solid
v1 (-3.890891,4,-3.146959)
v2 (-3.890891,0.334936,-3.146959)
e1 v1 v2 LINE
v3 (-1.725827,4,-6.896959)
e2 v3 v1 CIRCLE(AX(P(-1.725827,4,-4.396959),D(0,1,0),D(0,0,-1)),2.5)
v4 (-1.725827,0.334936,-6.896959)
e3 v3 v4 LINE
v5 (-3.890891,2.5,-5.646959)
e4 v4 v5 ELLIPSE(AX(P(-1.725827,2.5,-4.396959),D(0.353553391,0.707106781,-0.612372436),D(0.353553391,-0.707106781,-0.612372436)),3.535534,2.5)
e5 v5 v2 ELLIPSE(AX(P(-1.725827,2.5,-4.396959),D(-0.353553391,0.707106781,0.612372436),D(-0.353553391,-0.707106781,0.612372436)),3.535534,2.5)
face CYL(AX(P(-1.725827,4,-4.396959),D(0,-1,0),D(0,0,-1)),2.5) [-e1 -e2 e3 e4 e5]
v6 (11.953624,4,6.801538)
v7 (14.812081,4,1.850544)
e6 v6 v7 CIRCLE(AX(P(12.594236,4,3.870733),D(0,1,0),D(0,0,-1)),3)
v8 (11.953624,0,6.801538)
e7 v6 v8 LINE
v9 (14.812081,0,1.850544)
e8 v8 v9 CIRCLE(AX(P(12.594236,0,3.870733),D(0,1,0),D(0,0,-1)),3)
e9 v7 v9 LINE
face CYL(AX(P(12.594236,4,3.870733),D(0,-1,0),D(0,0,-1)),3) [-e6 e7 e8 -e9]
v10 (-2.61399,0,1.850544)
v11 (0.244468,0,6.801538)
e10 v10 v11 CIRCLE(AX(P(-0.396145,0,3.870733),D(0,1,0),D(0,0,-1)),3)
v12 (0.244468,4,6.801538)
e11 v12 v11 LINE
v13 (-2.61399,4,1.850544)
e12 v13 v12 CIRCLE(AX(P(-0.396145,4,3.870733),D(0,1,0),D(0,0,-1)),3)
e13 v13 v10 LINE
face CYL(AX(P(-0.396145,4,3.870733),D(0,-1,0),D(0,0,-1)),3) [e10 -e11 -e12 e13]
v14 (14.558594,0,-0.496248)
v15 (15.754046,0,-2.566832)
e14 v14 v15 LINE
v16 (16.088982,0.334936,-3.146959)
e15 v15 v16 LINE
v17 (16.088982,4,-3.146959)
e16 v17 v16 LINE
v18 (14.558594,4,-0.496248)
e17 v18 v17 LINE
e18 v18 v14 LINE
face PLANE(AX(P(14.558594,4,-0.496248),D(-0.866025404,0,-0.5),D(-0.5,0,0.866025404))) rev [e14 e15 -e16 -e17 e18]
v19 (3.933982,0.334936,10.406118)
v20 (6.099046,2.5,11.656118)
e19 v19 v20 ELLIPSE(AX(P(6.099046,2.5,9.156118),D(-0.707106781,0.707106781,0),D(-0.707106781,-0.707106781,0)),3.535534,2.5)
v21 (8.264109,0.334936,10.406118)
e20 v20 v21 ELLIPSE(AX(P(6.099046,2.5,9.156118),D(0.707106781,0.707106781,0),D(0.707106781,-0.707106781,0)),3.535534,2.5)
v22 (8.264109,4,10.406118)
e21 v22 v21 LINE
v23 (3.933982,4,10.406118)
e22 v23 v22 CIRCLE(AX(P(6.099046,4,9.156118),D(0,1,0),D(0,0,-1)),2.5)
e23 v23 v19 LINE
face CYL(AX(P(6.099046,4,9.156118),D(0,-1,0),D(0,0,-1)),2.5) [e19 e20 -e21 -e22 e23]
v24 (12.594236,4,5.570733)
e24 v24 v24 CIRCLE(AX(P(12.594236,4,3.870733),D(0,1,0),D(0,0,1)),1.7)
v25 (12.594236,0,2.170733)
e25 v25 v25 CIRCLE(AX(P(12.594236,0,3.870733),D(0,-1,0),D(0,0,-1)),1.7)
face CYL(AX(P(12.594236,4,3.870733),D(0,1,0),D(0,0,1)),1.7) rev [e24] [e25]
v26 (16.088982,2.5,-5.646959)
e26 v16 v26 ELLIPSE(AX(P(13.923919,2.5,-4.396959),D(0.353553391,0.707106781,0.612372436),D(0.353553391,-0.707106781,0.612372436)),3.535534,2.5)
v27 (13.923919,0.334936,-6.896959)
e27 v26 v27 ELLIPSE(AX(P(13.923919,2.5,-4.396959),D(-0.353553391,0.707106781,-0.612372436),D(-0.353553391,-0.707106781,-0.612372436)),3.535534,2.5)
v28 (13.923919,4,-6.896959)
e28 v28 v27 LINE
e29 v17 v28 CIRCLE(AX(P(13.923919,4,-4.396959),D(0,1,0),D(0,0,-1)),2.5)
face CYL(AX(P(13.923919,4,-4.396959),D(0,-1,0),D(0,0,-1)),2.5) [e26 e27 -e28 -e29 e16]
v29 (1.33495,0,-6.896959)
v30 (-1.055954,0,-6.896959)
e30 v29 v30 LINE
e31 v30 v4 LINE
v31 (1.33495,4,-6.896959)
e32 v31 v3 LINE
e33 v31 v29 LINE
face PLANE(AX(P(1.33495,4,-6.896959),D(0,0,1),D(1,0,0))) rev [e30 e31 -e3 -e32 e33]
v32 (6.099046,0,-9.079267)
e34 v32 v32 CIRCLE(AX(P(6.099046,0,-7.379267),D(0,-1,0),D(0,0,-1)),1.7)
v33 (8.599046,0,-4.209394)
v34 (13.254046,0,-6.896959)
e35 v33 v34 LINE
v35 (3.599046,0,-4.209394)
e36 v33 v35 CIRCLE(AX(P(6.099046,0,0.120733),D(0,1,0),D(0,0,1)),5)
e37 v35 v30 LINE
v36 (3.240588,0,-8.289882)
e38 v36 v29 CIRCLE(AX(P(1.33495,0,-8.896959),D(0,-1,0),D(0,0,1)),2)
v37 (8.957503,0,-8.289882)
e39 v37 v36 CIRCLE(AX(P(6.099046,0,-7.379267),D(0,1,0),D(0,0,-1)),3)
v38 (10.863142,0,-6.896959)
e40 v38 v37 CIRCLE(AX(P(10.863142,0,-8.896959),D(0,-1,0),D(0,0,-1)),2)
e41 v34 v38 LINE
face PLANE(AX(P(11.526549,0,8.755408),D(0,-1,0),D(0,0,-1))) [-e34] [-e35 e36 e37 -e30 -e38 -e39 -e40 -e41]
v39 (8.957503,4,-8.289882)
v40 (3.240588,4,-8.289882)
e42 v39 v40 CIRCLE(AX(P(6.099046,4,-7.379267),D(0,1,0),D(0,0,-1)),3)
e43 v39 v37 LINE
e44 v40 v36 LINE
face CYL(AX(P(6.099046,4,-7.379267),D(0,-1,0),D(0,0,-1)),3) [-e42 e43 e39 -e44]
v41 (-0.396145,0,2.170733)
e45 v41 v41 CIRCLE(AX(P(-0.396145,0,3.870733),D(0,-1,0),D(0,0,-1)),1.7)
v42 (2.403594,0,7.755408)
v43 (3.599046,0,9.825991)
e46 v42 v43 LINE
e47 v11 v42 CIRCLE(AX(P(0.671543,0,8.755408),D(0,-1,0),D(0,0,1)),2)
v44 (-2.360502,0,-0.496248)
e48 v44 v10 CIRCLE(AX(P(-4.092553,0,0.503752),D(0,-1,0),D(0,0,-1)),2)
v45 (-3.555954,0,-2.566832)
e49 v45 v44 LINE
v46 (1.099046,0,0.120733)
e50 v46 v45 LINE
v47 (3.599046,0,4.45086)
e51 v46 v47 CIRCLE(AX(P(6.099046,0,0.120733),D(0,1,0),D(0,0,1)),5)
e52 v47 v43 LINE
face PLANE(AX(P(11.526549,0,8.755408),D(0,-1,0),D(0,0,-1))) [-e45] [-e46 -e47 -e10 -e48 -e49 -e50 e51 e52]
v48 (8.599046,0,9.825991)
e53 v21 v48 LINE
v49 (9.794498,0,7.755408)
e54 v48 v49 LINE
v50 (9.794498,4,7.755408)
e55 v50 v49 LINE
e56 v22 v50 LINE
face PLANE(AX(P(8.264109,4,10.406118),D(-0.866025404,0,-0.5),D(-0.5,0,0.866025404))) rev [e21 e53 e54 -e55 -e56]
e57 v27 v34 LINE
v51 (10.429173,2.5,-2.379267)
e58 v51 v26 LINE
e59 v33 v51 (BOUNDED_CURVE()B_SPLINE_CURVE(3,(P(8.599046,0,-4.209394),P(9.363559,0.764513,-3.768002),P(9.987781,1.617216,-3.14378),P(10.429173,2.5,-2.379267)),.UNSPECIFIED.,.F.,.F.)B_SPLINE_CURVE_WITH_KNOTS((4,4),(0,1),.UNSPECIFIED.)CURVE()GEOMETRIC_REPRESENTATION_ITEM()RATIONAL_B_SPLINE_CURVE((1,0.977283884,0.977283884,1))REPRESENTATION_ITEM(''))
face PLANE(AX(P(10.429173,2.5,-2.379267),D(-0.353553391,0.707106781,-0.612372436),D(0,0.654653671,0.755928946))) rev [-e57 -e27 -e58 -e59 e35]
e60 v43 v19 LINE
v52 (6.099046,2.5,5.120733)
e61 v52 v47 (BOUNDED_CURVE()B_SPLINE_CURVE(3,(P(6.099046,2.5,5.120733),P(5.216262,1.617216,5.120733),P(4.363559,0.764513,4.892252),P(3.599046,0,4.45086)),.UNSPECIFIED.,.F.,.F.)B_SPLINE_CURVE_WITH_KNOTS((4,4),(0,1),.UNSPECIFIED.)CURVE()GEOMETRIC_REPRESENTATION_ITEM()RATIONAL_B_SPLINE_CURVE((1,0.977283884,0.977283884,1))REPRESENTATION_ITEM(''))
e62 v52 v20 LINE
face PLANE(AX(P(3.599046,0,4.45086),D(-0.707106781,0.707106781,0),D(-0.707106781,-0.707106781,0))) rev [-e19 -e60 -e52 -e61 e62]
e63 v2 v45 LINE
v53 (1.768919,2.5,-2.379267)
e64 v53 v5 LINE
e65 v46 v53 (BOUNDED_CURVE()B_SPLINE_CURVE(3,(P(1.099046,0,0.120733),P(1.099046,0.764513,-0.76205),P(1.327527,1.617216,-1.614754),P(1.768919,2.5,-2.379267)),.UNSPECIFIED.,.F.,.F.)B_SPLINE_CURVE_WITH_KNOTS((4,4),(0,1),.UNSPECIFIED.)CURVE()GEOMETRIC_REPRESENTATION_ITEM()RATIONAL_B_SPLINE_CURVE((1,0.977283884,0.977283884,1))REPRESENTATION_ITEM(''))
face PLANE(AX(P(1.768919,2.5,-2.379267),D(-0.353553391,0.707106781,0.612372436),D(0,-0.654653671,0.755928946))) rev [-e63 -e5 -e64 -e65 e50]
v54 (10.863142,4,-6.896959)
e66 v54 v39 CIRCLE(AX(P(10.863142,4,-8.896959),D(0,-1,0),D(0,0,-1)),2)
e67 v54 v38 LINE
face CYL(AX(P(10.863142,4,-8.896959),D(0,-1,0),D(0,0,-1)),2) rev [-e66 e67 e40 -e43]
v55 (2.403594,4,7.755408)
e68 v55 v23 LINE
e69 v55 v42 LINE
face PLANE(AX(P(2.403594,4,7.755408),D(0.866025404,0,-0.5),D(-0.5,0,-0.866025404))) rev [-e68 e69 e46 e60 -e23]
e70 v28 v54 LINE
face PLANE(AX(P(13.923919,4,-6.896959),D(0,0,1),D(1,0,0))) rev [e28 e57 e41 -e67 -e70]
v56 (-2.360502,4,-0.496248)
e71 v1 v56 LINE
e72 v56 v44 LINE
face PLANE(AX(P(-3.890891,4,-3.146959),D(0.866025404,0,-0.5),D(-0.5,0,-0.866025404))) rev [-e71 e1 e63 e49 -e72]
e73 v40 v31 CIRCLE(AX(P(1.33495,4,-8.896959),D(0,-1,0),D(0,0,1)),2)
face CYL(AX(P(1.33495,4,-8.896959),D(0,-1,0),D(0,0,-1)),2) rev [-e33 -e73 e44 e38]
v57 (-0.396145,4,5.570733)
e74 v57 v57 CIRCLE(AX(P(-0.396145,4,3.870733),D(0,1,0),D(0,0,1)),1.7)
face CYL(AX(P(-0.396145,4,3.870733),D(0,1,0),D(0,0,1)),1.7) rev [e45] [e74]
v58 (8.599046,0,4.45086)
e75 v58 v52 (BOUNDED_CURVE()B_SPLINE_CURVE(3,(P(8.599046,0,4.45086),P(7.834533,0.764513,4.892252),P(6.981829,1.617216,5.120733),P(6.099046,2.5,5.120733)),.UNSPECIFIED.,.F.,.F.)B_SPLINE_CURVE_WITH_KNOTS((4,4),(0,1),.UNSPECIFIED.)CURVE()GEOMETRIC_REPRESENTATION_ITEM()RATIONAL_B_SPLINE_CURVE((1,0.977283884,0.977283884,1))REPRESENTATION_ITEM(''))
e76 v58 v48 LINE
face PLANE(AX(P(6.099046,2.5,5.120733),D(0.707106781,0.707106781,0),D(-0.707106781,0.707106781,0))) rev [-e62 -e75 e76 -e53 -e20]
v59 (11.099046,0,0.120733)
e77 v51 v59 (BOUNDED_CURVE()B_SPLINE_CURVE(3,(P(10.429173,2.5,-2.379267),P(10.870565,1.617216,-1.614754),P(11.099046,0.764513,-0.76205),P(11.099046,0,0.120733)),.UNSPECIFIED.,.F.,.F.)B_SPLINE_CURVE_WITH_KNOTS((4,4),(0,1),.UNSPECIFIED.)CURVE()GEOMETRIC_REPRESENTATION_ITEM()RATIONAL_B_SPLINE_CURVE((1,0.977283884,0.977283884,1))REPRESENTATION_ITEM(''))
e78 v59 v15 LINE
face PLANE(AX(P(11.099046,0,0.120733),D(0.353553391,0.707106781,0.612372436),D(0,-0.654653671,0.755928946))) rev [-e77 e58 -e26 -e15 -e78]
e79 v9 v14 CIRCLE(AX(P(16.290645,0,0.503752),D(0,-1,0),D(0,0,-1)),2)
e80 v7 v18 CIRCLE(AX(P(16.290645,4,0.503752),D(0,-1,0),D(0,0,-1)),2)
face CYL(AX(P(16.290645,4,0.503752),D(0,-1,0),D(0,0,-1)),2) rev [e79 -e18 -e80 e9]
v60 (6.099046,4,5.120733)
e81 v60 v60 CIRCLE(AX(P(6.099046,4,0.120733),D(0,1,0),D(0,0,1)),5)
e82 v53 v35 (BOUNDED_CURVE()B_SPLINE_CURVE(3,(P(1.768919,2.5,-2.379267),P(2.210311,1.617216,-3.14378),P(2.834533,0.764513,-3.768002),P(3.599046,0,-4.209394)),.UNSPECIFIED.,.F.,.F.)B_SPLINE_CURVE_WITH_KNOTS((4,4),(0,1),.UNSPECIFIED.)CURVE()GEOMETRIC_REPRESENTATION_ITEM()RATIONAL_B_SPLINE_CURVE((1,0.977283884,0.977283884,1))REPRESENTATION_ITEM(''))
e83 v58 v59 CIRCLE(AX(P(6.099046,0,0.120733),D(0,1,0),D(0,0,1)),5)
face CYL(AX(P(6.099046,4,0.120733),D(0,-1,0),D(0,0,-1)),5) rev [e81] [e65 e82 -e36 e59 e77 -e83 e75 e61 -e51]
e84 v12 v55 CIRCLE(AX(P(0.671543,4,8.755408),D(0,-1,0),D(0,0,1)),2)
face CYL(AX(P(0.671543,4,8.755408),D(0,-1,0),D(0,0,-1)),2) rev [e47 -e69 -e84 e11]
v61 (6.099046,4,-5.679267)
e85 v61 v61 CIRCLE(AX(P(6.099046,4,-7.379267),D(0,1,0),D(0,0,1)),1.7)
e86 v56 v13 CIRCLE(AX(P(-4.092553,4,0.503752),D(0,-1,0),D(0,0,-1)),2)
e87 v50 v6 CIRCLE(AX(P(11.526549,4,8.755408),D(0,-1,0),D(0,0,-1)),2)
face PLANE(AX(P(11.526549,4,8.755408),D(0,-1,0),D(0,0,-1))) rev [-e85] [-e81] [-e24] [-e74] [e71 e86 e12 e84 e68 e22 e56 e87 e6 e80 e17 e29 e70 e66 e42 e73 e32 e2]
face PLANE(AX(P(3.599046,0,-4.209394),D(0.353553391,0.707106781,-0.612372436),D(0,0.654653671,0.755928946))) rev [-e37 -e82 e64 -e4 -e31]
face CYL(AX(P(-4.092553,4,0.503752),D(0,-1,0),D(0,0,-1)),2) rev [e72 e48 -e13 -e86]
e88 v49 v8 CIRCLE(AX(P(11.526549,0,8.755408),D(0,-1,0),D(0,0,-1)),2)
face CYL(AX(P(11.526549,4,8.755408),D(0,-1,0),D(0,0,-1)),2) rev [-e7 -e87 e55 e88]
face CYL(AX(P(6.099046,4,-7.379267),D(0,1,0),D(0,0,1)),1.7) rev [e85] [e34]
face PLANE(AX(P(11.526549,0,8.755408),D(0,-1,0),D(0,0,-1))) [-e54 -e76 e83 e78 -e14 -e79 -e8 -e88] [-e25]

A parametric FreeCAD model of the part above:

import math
import FreeCAD as App
import Part
import Sketcher
from FreeCAD import Vector
Q = App.Units.Quantity

doc = App.newDocument("Part")
body = doc.addObject("PartDesign::Body", "Body")

# Sketch on XZ plane
sketch1 = body.newObject("Sketcher::SketchObject", "Sketch")
sketch1.AttachmentSupport = (doc.getObject("XZ_Plane"), [""])
sketch1.MapMode = "FlatFace"
sketch1.addGeometry([
    Part.LineSegment(Vector(-3.890891, -3.146959, 0), Vector(-2.360502, -0.496248, 0)),  # 0
    Part.ArcOfCircle(Part.Circle(Vector(-4.092553, 0.503752, 0), Vector(0, 0, 1), 2), math.radians(-30), math.radians(42.329742)),  # 1
    Part.ArcOfCircle(Part.Circle(Vector(-0.396145, 3.870733, 0), Vector(0, 0, 1), 3), math.radians(77.670258), math.radians(222.329742)),  # 2
    Part.ArcOfCircle(Part.Circle(Vector(0.671543, 8.755408, 0), Vector(0, 0, 1), 2), math.radians(-102.329742), math.radians(-30)),  # 3
    Part.LineSegment(Vector(2.403594, 7.755408, 0), Vector(3.933982, 10.406118, 0)),  # 4
    Part.ArcOfCircle(Part.Circle(Vector(6.099046, 9.156118, 0), Vector(0, 0, 1), 2.5), math.radians(30), math.radians(150)),  # 5
    Part.LineSegment(Vector(8.264109, 10.406118, 0), Vector(9.794498, 7.755408, 0)),  # 6
    Part.ArcOfCircle(Part.Circle(Vector(11.526549, 8.755408, 0), Vector(0, 0, 1), 2), math.radians(-150), math.radians(-77.670258)),  # 7
    Part.ArcOfCircle(Part.Circle(Vector(12.594236, 3.870733, 0), Vector(0, 0, 1), 3), math.radians(-42.329742), math.radians(102.329742)),  # 8
    Part.ArcOfCircle(Part.Circle(Vector(16.290645, 0.503752, 0), Vector(0, 0, 1), 2), math.radians(137.670258), math.radians(210)),  # 9
    Part.LineSegment(Vector(14.558594, -0.496248, 0), Vector(16.088982, -3.146959, 0)),  # 10
    Part.ArcOfCircle(Part.Circle(Vector(13.923919, -4.396959, 0), Vector(0, 0, 1), 2.5), math.radians(-90), math.radians(30)),  # 11
    Part.LineSegment(Vector(13.923919, -6.896959, 0), Vector(10.863142, -6.896959, 0)),  # 12
    Part.ArcOfCircle(Part.Circle(Vector(10.863142, -8.896959, 0), Vector(0, 0, 1), 2), math.radians(90), math.radians(162.329742)),  # 13
    Part.ArcOfCircle(Part.Circle(Vector(6.099046, -7.379267, 0), Vector(0, 0, 1), 3), math.radians(-162.329742), math.radians(-17.670258)),  # 14
    Part.ArcOfCircle(Part.Circle(Vector(1.33495, -8.896959, 0), Vector(0, 0, 1), 2), math.radians(17.670258), math.radians(90)),  # 15
    Part.LineSegment(Vector(1.33495, -6.896959, 0), Vector(-1.725827, -6.896959, 0)),  # 16
    Part.ArcOfCircle(Part.Circle(Vector(-1.725827, -4.396959, 0), Vector(0, 0, 1), 2.5), math.radians(150), math.radians(270)),  # 17
    Part.Circle(Vector(6.099046, 0.120733, 0), Vector(0, 0, 1), 5),  # 18
], False)
sketch1.addConstraint([
    Sketcher.Constraint("Tangent", 0, 2, 1, 1),
    Sketcher.Constraint("Tangent", 1, 2, 2, 2),
    Sketcher.Constraint("Tangent", 2, 1, 3, 1),
    Sketcher.Constraint("Tangent", 3, 2, 4, 1),
    Sketcher.Constraint("Tangent", 4, 2, 5, 2),
    Sketcher.Constraint("Tangent", 5, 1, 6, 1),
    Sketcher.Constraint("Tangent", 6, 2, 7, 1),
    Sketcher.Constraint("Tangent", 7, 2, 8, 2),
    Sketcher.Constraint("Tangent", 8, 1, 9, 1),
    Sketcher.Constraint("Tangent", 9, 2, 10, 1),
    Sketcher.Constraint("Tangent", 10, 2, 11, 2),
    Sketcher.Constraint("Tangent", 11, 1, 12, 1),
    Sketcher.Constraint("Tangent", 12, 2, 13, 1),
    Sketcher.Constraint("Tangent", 13, 2, 14, 2),
    Sketcher.Constraint("Tangent", 14, 1, 15, 1),
    Sketcher.Constraint("Tangent", 15, 2, 16, 1),
    Sketcher.Constraint("Tangent", 16, 2, 17, 2),
    Sketcher.Constraint("Tangent", 17, 1, 0, 1),
    Sketcher.Constraint("Horizontal", 12),
    Sketcher.Constraint("Horizontal", 16),
    Sketcher.Constraint("Equal", 1, 3),
    Sketcher.Constraint("Equal", 3, 7),
    Sketcher.Constraint("Equal", 2, 8),
    Sketcher.Constraint("Equal", 7, 9),
    Sketcher.Constraint("Equal", 5, 11),
    Sketcher.Constraint("Equal", 9, 13),
    Sketcher.Constraint("Equal", 8, 14),
    Sketcher.Constraint("Equal", 13, 15),
    Sketcher.Constraint("Equal", 11, 17),
    Sketcher.Constraint("Parallel", 0, 4),
    Sketcher.Constraint("Parallel", 6, 10),
    Sketcher.Constraint("Horizontal", 3, 3, 7, 3),
    Sketcher.Constraint("Horizontal", 2, 3, 8, 3),
    Sketcher.Constraint("Horizontal", 1, 3, 9, 3),
    Sketcher.Constraint("Horizontal", 13, 3, 15, 3),
    Sketcher.Constraint("Horizontal", 4, 2, 5, 1),
    Sketcher.Constraint("Vertical", 5, 3, 14, 3),
    Sketcher.Constraint("Vertical", 14, 3, 18, 3),
    Sketcher.Constraint("Equal", 0, 4),
    Sketcher.Constraint("Diameter", 18, 10.0),
    Sketcher.Constraint("Radius", 1, 2.0),
    Sketcher.Constraint("Radius", 2, 3.0),
    Sketcher.Constraint("Radius", 5, 2.5),
    Sketcher.Constraint("Angle", 0, Q("60 deg")),
    Sketcher.Constraint("DistanceY", 14, 3, 18, 3, 7.5),
    Sketcher.Constraint("DistanceY", 14, 3, 8, 3, 11.25),
    Sketcher.Constraint("DistanceX", 1, 3, 5, 3, 10.191599),
    Sketcher.Constraint("DistanceX", 1, 3, 7, 3, 15.619102),
    Sketcher.Constraint("DistanceX", 8, 1, 10, 2, 1.276901),
    Sketcher.Constraint("DistanceY", -1, 1, 1, 3, 0.503752),
    Sketcher.Constraint("DistanceX", -1, 1, 7, 3, 11.526549),
])
pad1 = body.newObject("PartDesign::Pad", "Pad")
pad1.Profile = sketch1
pad1.Length = 4
pad1.Reversed = True

# Sketch on YZ plane
sketch2 = body.newObject("Sketcher::SketchObject", "Sketch001")
sketch2.AttachmentSupport = (doc.getObject("YZ_Plane"), [""])
sketch2.MapMode = "FlatFace"
sketch2.AttachmentOffset = App.Placement(Vector(0, 0, -0.396145), App.Rotation())
sketch2.addGeometry([
    Part.LineSegment(Vector(-7.021463, 3.870733, 0), Vector(4, 3.870733, 0)),
    Part.LineSegment(Vector(4, 3.870733, 0), Vector(4, 5.570733, 0)),
    Part.LineSegment(Vector(4, 5.570733, 0), Vector(-6, 5.570733, 0)),
    Part.LineSegment(Vector(-6, 5.570733, 0), Vector(-7.021463, 3.870733, 0)),
], False)
sketch2.addGeometry(Part.LineSegment(Vector(4, 3.870733, 0), Vector(-7.021463, 3.870733, 0)), True)  # axis
sketch2.addConstraint([
    Sketcher.Constraint("Coincident", 0, 2, 1, 1),
    Sketcher.Constraint("Coincident", 1, 2, 2, 1),
    Sketcher.Constraint("Coincident", 2, 2, 3, 1),
    Sketcher.Constraint("Coincident", 3, 2, 0, 1),
    Sketcher.Constraint("Horizontal", 0),
    Sketcher.Constraint("Vertical", 1),
    Sketcher.Constraint("Horizontal", 2),
    Sketcher.Constraint("Horizontal", 4),
    Sketcher.Constraint("Coincident", 4, 1, 0, 2),
    Sketcher.Constraint("Equal", 0, 4),
    Sketcher.Constraint("DistanceX", 2, 2, 2, 1, 10.0),
    Sketcher.Constraint("Angle", 3, Q("-121 deg")),
    Sketcher.Constraint("DistanceY", 1, 1, 1, 2, 1.7),
    Sketcher.Constraint("DistanceX", -1, 1, 0, 2, 4.0),
    Sketcher.Constraint("DistanceY", -1, 1, 0, 2, 3.870733),
])
groove = body.newObject("PartDesign::Groove", "Groove")
groove.Profile = sketch2
groove.ReferenceAxis = (sketch2, ["Axis0"])
groove.Angle = 360
doc.recompute()

datumline = body.newObject("PartDesign::Line", "DatumLine")
datumline.Placement = App.Placement(Vector(6.099046, 0, 0.120733), App.Rotation(Vector(0, 0, 1), Vector(0, 1, 0)))
polarpattern = body.newObject("PartDesign::PolarPattern", "PolarPattern")
polarpattern.Originals = [groove]
polarpattern.Axis = (datumline, [""])
polarpattern.Angle = 360
polarpattern.Occurrences = 3
body.Tip = polarpattern

# Sketch on XY plane
sketch3 = body.newObject("Sketcher::SketchObject", "Sketch002")
sketch3.AttachmentSupport = (doc.getObject("XY_Plane"), [""])
sketch3.MapMode = "FlatFace"
sketch3.AttachmentOffset = App.Placement(Vector(0, 0, 4.45086), App.Rotation())
sketch3.addGeometry([
    Part.LineSegment(Vector(34.668922, -26.069877, 0), Vector(6.099046, 2.5, 0)),  # 0
    Part.LineSegment(Vector(6.099046, 2.5, 0), Vector(-22.470831, -26.069877, 0)),  # 1
    Part.LineSegment(Vector(-22.470831, -26.069877, 0), Vector(-22.470831, -99.806623, 0)),  # 2
    Part.LineSegment(Vector(-22.470831, -99.806623, 0), Vector(34.668922, -99.806623, 0)),  # 3
    Part.LineSegment(Vector(34.668922, -99.806623, 0), Vector(34.668922, -26.069877, 0)),  # 4
], False)
sketch3.addConstraint([
    Sketcher.Constraint("Coincident", 0, 2, 1, 1),
    Sketcher.Constraint("Coincident", 1, 2, 2, 1),
    Sketcher.Constraint("Coincident", 2, 2, 3, 1),
    Sketcher.Constraint("Coincident", 3, 2, 4, 1),
    Sketcher.Constraint("Coincident", 4, 2, 0, 1),
    Sketcher.Constraint("Vertical", 2),
    Sketcher.Constraint("Horizontal", 3),
    Sketcher.Constraint("Vertical", 4),
    Sketcher.Constraint("Perpendicular", 0, 1),
    Sketcher.Constraint("Horizontal", 1, 2, 4, 2),
    Sketcher.Constraint("Equal", 0, 1),
    Sketcher.Constraint("DistanceY", -1, 1, 0, 2, 2.5),
    Sketcher.Constraint("DistanceX", 3, 1, 3, 2, 57.139753),
    Sketcher.Constraint("DistanceY", 2, 2, 2, 1, 73.736746),
    Sketcher.Constraint("DistanceX", 1, 2, -1, 1, 22.470831),
])
pocket1 = body.newObject("PartDesign::Pocket", "Pocket")
pocket1.Profile = sketch3
pocket1.Length = 7.205259
pocket1.Reversed = True

# Sketch on an angled plane
sketch4 = body.newObject("Sketcher::SketchObject", "Sketch003")
sketch4.Placement = App.Placement(Vector(0.876564, 0, 0.506084), App.Rotation(Vector(-0.5, 0, 0.866025404), Vector(0, 1, 0), Vector(-0.866025404, 0, -0.5), "ZXY"))
sketch4.addGeometry([
    Part.LineSegment(Vector(32.223223, -32.668188, 0), Vector(-0.444965, 0, 0)),  # 0
    Part.LineSegment(Vector(-0.444965, 0, 0), Vector(-2.944965, 2.5, 0)),  # 1
    Part.LineSegment(Vector(-2.944965, 2.5, 0), Vector(-38.113152, -32.668188, 0)),  # 2
    Part.LineSegment(Vector(-38.113152, -32.668188, 0), Vector(-38.113152, -125.067776, 0)),  # 3
    Part.LineSegment(Vector(-38.113152, -125.067776, 0), Vector(32.223223, -125.067776, 0)),  # 4
    Part.LineSegment(Vector(32.223223, -125.067776, 0), Vector(32.223223, -32.668188, 0)),  # 5
], False)
sketch4.addConstraint([
    Sketcher.Constraint("Coincident", 0, 2, 1, 1),
    Sketcher.Constraint("Coincident", 1, 2, 2, 1),
    Sketcher.Constraint("Coincident", 2, 2, 3, 1),
    Sketcher.Constraint("Coincident", 3, 2, 4, 1),
    Sketcher.Constraint("Coincident", 4, 2, 5, 1),
    Sketcher.Constraint("Coincident", 5, 2, 0, 1),
    Sketcher.Constraint("Vertical", 3),
    Sketcher.Constraint("Horizontal", 4),
    Sketcher.Constraint("Vertical", 5),
    Sketcher.Constraint("PointOnObject", 0, 2, -1),
    Sketcher.Constraint("Parallel", 0, 1),
    Sketcher.Constraint("Perpendicular", 1, 2),
    Sketcher.Constraint("Horizontal", 2, 2, 5, 2),
    Sketcher.Constraint("Angle", 0, Q("135 deg")),
    Sketcher.Constraint("DistanceY", -1, 1, 1, 2, 2.5),
    Sketcher.Constraint("DistanceY", 3, 2, 3, 1, 92.399588),
    Sketcher.Constraint("DistanceX", 4, 1, 4, 2, 70.336375),
    Sketcher.Constraint("DistanceX", 0, 2, -1, 1, 0.444965),
])
pocket2 = body.newObject("PartDesign::Pocket", "Pocket001")
pocket2.Profile = sketch4
pocket2.Length = 7.205258
pocket2.Reversed = True

# Sketch on an angled plane
sketch5 = body.newObject("Sketcher::SketchObject", "Sketch004")
sketch5.Placement = App.Placement(Vector(8.272005, 0, -4.775844), App.Rotation(Vector(-0.5, 0, -0.866025404), Vector(0, 1, 0), Vector(0.866025404, 0, -0.5), "ZXY"))
sketch5.addGeometry([
    Part.LineSegment(Vector(32.014107, -32.668188, 0), Vector(-3.154081, 2.5, 0)),  # 0
    Part.LineSegment(Vector(-3.154081, 2.5, 0), Vector(-5.654081, 0, 0)),  # 1
    Part.LineSegment(Vector(-5.654081, 0, 0), Vector(-38.322269, -32.668188, 0)),  # 2
    Part.LineSegment(Vector(-38.322269, -32.668188, 0), Vector(-38.322269, -125.067776, 0)),  # 3
    Part.LineSegment(Vector(-38.322269, -125.067776, 0), Vector(32.014107, -125.067776, 0)),  # 4
    Part.LineSegment(Vector(32.014107, -125.067776, 0), Vector(32.014107, -32.668188, 0)),  # 5
], False)
sketch5.addConstraint([
    Sketcher.Constraint("Coincident", 0, 2, 1, 1),
    Sketcher.Constraint("Coincident", 1, 2, 2, 1),
    Sketcher.Constraint("Coincident", 2, 2, 3, 1),
    Sketcher.Constraint("Coincident", 3, 2, 4, 1),
    Sketcher.Constraint("Coincident", 4, 2, 5, 1),
    Sketcher.Constraint("Coincident", 5, 2, 0, 1),
    Sketcher.Constraint("Vertical", 3),
    Sketcher.Constraint("Horizontal", 4),
    Sketcher.Constraint("Vertical", 5),
    Sketcher.Constraint("PointOnObject", 1, 2, -1),
    Sketcher.Constraint("Perpendicular", 0, 1),
    Sketcher.Constraint("Parallel", 1, 2),
    Sketcher.Constraint("Horizontal", 2, 2, 5, 2),
    Sketcher.Constraint("Angle", 0, Q("135 deg")),
    Sketcher.Constraint("DistanceY", -1, 1, 0, 2, 2.5),
    Sketcher.Constraint("DistanceY", 3, 2, 3, 1, 92.399588),
    Sketcher.Constraint("DistanceX", 4, 1, 4, 2, 70.336375),
    Sketcher.Constraint("DistanceX", 0, 2, -1, 1, 3.154081),
])
pocket3 = body.newObject("PartDesign::Pocket", "Pocket002")
pocket3.Profile = sketch5
pocket3.Length = 7.205258
pocket3.Reversed = True

doc.recompute()
